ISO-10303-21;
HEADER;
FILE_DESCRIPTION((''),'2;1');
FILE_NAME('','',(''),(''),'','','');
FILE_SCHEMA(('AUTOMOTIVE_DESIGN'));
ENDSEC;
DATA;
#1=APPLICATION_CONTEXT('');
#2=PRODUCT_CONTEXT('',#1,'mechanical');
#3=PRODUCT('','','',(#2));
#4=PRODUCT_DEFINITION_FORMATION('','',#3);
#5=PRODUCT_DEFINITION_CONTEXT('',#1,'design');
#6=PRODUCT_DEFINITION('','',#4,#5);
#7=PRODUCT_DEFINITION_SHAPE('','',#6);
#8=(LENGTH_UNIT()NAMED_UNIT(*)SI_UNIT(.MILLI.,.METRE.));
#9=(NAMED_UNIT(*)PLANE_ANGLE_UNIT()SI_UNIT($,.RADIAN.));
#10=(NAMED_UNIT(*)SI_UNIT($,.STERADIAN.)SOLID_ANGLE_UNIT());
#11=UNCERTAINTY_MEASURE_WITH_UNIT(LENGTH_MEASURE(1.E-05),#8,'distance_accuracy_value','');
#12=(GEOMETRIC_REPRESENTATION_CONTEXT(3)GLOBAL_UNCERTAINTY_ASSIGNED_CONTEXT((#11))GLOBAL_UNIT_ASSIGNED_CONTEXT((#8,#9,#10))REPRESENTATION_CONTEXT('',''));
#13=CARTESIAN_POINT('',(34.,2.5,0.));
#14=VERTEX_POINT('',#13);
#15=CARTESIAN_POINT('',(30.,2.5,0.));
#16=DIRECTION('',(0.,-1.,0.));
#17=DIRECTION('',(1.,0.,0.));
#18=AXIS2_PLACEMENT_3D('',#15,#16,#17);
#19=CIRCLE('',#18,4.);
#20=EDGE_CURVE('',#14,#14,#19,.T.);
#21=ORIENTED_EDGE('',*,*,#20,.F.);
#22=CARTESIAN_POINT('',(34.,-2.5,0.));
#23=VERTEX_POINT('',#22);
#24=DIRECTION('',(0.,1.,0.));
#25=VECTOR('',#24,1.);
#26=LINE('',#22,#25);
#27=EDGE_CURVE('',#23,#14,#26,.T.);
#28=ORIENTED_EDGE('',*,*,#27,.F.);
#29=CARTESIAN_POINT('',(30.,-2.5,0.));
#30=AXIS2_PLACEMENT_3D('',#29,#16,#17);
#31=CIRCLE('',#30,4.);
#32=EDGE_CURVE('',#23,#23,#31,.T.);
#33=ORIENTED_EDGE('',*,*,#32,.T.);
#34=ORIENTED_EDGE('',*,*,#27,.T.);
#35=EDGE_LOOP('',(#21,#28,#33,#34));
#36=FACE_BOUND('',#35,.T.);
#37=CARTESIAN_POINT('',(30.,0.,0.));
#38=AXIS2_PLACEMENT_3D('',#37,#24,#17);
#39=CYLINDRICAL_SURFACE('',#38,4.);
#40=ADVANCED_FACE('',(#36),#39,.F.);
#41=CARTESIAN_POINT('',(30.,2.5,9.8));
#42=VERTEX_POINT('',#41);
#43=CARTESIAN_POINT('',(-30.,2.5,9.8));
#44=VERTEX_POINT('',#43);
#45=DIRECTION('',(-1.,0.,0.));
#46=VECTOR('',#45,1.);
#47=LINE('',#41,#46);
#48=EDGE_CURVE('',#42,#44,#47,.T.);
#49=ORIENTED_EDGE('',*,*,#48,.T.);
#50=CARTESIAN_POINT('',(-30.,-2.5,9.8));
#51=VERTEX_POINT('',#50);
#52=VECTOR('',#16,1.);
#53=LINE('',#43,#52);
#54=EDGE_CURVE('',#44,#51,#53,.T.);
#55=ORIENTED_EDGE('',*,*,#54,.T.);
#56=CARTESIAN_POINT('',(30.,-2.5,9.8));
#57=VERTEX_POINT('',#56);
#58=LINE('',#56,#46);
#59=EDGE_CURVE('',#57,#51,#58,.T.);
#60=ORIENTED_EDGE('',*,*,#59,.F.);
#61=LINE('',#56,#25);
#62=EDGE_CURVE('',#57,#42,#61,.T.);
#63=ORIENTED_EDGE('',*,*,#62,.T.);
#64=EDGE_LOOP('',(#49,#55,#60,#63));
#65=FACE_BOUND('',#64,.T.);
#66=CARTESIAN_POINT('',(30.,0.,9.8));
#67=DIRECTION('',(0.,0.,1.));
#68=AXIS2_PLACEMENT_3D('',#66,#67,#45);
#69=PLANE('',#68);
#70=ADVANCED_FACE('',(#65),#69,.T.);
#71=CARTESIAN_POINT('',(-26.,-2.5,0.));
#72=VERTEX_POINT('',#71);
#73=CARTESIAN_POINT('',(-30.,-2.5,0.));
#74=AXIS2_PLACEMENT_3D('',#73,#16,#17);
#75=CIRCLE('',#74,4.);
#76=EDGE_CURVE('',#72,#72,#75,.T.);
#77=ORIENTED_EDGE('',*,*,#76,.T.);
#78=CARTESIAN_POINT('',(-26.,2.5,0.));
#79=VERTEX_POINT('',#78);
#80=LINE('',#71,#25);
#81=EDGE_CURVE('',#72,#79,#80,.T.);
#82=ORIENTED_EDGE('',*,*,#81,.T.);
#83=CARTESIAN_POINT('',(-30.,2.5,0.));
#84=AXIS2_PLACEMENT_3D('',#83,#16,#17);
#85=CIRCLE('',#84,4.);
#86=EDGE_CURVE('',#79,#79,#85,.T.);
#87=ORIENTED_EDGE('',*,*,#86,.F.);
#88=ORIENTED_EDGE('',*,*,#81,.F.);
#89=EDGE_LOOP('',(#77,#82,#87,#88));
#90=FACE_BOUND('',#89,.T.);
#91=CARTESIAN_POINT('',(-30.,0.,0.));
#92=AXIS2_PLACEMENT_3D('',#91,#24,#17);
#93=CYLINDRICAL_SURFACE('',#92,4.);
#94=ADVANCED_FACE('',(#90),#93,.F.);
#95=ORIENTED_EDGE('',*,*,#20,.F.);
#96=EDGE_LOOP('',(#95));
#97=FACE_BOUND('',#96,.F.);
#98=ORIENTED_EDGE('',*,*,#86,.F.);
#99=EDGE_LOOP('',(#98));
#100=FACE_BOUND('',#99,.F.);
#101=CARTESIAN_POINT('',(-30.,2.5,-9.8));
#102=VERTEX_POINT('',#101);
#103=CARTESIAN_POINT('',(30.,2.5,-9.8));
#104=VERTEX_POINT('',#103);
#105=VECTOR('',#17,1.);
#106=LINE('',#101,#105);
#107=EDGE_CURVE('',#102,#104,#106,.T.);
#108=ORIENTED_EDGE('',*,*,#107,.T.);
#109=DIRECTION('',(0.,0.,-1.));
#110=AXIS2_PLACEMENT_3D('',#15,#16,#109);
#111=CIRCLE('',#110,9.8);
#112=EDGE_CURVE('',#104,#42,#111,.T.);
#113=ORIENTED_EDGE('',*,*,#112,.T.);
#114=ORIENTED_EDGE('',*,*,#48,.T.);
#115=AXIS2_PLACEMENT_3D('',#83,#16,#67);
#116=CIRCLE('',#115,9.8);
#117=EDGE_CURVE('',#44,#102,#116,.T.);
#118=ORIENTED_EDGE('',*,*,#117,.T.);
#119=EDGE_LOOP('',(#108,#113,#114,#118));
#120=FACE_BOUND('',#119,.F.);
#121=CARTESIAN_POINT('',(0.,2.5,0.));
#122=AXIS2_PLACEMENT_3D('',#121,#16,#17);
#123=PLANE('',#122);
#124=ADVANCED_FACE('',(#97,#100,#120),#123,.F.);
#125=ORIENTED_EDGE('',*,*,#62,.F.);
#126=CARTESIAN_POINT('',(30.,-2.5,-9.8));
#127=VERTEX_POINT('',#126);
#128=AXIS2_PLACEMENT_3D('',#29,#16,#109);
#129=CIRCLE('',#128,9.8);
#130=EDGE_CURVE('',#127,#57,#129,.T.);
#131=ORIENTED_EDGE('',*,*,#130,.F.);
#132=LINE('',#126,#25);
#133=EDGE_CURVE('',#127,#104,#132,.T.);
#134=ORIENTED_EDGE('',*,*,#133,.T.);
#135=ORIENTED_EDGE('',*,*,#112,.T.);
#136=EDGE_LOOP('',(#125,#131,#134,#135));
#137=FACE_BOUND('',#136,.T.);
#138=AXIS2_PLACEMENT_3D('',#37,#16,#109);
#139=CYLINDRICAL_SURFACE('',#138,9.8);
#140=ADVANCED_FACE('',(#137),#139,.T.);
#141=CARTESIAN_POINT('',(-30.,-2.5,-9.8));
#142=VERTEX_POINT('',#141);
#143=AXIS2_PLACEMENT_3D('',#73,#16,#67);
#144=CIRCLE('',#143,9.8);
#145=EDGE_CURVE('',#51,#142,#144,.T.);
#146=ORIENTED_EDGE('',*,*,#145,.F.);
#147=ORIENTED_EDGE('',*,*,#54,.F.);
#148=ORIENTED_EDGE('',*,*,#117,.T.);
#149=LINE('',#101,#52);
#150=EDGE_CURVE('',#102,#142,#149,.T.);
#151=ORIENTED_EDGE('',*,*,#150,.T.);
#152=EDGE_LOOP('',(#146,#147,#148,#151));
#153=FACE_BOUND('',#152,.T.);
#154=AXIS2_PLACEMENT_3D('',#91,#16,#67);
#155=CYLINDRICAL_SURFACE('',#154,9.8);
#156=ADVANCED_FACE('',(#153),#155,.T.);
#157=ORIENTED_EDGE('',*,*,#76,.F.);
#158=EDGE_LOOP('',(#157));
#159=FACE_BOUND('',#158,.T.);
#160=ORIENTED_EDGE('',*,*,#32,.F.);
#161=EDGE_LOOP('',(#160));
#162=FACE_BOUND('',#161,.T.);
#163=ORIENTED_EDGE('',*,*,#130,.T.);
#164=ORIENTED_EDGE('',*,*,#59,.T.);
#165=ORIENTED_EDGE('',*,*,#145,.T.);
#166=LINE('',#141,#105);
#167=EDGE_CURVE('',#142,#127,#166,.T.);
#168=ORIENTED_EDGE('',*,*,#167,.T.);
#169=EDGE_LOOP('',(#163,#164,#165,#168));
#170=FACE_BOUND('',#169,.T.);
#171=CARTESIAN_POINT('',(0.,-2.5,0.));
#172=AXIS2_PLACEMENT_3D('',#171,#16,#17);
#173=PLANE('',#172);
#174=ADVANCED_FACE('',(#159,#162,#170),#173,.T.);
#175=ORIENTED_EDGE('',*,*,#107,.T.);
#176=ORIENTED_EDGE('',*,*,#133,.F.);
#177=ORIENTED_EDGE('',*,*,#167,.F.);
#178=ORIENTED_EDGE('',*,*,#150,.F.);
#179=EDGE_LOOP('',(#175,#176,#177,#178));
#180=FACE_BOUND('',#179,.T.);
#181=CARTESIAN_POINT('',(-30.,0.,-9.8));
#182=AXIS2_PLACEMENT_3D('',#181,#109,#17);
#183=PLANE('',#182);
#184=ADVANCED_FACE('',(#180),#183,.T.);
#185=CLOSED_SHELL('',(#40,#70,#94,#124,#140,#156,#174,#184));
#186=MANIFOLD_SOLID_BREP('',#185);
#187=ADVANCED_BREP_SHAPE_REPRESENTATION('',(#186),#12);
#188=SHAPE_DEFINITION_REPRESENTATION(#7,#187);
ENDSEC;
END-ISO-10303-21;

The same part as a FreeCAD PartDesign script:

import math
import FreeCAD as App
import Part
import Sketcher
from FreeCAD import Vector
Q = App.Units.Quantity

doc = App.newDocument("Part")
body = doc.addObject("PartDesign::Body", "Body")

# Sketch on XZ plane
sketch1 = body.newObject("Sketcher::SketchObject", "Sketch")
sketch1.AttachmentSupport = (doc.getObject("XZ_Plane"), [""])
sketch1.MapMode = "FlatFace"
sketch1.addGeometry(Part.LineSegment(Vector(30, 9.8, 0), Vector(-30, 9.8, 0)), False)
sketch1.addGeometry(Part.ArcOfCircle(Part.Circle(Vector(-30, 0, 0), Vector(0, 0, 1), 9.8), math.radians(90), math.radians(270)), False)
sketch1.addGeometry(Part.LineSegment(Vector(-30, -9.8, 0), Vector(30, -9.8, 0)), False)
sketch1.addGeometry(Part.ArcOfCircle(Part.Circle(Vector(30, 0, 0), Vector(0, 0, 1), 9.8), math.radians(-90), math.radians(90)), False)
sketch1.addGeometry(Part.Circle(Vector(-30, 0, 0), Vector(0, 0, 1), 4), False)
sketch1.addGeometry(Part.Circle(Vector(30, 0, 0), Vector(0, 0, 1), 4), False)
sketch1.addConstraint(Sketcher.Constraint("Tangent", 0, 2, 1, 1))
sketch1.addConstraint(Sketcher.Constraint("Tangent", 1, 2, 2, 1))
sketch1.addConstraint(Sketcher.Constraint("Tangent", 2, 2, 3, 1))
sketch1.addConstraint(Sketcher.Constraint("Tangent", 3, 2, 0, 1))
sketch1.addConstraint(Sketcher.Constraint("Horizontal", 0))
sketch1.addConstraint(Sketcher.Constraint("Horizontal", 2))
sketch1.addConstraint(Sketcher.Constraint("Coincident", 4, 3, 1, 3))
sketch1.addConstraint(Sketcher.Constraint("Coincident", 5, 3, 3, 3))
sketch1.addConstraint(Sketcher.Constraint("Equal", 4, 5))
sketch1.addConstraint(Sketcher.Constraint("Symmetric", 1, 3, 3, 3, -1, 1))
sketch1.addConstraint(Sketcher.Constraint("Diameter", 4, Q("8 mm")))
sketch1.addConstraint(Sketcher.Constraint("Radius", 1, Q("9.8 mm")))
sketch1.addConstraint(Sketcher.Constraint("DistanceX", 0, 2, 0, 1, Q("60 mm")))
pad1 = body.newObject("PartDesign::Pad", "Pad")
pad1.Profile = sketch1
pad1.Length = 5
pad1.Midplane = True

doc.recompute()
